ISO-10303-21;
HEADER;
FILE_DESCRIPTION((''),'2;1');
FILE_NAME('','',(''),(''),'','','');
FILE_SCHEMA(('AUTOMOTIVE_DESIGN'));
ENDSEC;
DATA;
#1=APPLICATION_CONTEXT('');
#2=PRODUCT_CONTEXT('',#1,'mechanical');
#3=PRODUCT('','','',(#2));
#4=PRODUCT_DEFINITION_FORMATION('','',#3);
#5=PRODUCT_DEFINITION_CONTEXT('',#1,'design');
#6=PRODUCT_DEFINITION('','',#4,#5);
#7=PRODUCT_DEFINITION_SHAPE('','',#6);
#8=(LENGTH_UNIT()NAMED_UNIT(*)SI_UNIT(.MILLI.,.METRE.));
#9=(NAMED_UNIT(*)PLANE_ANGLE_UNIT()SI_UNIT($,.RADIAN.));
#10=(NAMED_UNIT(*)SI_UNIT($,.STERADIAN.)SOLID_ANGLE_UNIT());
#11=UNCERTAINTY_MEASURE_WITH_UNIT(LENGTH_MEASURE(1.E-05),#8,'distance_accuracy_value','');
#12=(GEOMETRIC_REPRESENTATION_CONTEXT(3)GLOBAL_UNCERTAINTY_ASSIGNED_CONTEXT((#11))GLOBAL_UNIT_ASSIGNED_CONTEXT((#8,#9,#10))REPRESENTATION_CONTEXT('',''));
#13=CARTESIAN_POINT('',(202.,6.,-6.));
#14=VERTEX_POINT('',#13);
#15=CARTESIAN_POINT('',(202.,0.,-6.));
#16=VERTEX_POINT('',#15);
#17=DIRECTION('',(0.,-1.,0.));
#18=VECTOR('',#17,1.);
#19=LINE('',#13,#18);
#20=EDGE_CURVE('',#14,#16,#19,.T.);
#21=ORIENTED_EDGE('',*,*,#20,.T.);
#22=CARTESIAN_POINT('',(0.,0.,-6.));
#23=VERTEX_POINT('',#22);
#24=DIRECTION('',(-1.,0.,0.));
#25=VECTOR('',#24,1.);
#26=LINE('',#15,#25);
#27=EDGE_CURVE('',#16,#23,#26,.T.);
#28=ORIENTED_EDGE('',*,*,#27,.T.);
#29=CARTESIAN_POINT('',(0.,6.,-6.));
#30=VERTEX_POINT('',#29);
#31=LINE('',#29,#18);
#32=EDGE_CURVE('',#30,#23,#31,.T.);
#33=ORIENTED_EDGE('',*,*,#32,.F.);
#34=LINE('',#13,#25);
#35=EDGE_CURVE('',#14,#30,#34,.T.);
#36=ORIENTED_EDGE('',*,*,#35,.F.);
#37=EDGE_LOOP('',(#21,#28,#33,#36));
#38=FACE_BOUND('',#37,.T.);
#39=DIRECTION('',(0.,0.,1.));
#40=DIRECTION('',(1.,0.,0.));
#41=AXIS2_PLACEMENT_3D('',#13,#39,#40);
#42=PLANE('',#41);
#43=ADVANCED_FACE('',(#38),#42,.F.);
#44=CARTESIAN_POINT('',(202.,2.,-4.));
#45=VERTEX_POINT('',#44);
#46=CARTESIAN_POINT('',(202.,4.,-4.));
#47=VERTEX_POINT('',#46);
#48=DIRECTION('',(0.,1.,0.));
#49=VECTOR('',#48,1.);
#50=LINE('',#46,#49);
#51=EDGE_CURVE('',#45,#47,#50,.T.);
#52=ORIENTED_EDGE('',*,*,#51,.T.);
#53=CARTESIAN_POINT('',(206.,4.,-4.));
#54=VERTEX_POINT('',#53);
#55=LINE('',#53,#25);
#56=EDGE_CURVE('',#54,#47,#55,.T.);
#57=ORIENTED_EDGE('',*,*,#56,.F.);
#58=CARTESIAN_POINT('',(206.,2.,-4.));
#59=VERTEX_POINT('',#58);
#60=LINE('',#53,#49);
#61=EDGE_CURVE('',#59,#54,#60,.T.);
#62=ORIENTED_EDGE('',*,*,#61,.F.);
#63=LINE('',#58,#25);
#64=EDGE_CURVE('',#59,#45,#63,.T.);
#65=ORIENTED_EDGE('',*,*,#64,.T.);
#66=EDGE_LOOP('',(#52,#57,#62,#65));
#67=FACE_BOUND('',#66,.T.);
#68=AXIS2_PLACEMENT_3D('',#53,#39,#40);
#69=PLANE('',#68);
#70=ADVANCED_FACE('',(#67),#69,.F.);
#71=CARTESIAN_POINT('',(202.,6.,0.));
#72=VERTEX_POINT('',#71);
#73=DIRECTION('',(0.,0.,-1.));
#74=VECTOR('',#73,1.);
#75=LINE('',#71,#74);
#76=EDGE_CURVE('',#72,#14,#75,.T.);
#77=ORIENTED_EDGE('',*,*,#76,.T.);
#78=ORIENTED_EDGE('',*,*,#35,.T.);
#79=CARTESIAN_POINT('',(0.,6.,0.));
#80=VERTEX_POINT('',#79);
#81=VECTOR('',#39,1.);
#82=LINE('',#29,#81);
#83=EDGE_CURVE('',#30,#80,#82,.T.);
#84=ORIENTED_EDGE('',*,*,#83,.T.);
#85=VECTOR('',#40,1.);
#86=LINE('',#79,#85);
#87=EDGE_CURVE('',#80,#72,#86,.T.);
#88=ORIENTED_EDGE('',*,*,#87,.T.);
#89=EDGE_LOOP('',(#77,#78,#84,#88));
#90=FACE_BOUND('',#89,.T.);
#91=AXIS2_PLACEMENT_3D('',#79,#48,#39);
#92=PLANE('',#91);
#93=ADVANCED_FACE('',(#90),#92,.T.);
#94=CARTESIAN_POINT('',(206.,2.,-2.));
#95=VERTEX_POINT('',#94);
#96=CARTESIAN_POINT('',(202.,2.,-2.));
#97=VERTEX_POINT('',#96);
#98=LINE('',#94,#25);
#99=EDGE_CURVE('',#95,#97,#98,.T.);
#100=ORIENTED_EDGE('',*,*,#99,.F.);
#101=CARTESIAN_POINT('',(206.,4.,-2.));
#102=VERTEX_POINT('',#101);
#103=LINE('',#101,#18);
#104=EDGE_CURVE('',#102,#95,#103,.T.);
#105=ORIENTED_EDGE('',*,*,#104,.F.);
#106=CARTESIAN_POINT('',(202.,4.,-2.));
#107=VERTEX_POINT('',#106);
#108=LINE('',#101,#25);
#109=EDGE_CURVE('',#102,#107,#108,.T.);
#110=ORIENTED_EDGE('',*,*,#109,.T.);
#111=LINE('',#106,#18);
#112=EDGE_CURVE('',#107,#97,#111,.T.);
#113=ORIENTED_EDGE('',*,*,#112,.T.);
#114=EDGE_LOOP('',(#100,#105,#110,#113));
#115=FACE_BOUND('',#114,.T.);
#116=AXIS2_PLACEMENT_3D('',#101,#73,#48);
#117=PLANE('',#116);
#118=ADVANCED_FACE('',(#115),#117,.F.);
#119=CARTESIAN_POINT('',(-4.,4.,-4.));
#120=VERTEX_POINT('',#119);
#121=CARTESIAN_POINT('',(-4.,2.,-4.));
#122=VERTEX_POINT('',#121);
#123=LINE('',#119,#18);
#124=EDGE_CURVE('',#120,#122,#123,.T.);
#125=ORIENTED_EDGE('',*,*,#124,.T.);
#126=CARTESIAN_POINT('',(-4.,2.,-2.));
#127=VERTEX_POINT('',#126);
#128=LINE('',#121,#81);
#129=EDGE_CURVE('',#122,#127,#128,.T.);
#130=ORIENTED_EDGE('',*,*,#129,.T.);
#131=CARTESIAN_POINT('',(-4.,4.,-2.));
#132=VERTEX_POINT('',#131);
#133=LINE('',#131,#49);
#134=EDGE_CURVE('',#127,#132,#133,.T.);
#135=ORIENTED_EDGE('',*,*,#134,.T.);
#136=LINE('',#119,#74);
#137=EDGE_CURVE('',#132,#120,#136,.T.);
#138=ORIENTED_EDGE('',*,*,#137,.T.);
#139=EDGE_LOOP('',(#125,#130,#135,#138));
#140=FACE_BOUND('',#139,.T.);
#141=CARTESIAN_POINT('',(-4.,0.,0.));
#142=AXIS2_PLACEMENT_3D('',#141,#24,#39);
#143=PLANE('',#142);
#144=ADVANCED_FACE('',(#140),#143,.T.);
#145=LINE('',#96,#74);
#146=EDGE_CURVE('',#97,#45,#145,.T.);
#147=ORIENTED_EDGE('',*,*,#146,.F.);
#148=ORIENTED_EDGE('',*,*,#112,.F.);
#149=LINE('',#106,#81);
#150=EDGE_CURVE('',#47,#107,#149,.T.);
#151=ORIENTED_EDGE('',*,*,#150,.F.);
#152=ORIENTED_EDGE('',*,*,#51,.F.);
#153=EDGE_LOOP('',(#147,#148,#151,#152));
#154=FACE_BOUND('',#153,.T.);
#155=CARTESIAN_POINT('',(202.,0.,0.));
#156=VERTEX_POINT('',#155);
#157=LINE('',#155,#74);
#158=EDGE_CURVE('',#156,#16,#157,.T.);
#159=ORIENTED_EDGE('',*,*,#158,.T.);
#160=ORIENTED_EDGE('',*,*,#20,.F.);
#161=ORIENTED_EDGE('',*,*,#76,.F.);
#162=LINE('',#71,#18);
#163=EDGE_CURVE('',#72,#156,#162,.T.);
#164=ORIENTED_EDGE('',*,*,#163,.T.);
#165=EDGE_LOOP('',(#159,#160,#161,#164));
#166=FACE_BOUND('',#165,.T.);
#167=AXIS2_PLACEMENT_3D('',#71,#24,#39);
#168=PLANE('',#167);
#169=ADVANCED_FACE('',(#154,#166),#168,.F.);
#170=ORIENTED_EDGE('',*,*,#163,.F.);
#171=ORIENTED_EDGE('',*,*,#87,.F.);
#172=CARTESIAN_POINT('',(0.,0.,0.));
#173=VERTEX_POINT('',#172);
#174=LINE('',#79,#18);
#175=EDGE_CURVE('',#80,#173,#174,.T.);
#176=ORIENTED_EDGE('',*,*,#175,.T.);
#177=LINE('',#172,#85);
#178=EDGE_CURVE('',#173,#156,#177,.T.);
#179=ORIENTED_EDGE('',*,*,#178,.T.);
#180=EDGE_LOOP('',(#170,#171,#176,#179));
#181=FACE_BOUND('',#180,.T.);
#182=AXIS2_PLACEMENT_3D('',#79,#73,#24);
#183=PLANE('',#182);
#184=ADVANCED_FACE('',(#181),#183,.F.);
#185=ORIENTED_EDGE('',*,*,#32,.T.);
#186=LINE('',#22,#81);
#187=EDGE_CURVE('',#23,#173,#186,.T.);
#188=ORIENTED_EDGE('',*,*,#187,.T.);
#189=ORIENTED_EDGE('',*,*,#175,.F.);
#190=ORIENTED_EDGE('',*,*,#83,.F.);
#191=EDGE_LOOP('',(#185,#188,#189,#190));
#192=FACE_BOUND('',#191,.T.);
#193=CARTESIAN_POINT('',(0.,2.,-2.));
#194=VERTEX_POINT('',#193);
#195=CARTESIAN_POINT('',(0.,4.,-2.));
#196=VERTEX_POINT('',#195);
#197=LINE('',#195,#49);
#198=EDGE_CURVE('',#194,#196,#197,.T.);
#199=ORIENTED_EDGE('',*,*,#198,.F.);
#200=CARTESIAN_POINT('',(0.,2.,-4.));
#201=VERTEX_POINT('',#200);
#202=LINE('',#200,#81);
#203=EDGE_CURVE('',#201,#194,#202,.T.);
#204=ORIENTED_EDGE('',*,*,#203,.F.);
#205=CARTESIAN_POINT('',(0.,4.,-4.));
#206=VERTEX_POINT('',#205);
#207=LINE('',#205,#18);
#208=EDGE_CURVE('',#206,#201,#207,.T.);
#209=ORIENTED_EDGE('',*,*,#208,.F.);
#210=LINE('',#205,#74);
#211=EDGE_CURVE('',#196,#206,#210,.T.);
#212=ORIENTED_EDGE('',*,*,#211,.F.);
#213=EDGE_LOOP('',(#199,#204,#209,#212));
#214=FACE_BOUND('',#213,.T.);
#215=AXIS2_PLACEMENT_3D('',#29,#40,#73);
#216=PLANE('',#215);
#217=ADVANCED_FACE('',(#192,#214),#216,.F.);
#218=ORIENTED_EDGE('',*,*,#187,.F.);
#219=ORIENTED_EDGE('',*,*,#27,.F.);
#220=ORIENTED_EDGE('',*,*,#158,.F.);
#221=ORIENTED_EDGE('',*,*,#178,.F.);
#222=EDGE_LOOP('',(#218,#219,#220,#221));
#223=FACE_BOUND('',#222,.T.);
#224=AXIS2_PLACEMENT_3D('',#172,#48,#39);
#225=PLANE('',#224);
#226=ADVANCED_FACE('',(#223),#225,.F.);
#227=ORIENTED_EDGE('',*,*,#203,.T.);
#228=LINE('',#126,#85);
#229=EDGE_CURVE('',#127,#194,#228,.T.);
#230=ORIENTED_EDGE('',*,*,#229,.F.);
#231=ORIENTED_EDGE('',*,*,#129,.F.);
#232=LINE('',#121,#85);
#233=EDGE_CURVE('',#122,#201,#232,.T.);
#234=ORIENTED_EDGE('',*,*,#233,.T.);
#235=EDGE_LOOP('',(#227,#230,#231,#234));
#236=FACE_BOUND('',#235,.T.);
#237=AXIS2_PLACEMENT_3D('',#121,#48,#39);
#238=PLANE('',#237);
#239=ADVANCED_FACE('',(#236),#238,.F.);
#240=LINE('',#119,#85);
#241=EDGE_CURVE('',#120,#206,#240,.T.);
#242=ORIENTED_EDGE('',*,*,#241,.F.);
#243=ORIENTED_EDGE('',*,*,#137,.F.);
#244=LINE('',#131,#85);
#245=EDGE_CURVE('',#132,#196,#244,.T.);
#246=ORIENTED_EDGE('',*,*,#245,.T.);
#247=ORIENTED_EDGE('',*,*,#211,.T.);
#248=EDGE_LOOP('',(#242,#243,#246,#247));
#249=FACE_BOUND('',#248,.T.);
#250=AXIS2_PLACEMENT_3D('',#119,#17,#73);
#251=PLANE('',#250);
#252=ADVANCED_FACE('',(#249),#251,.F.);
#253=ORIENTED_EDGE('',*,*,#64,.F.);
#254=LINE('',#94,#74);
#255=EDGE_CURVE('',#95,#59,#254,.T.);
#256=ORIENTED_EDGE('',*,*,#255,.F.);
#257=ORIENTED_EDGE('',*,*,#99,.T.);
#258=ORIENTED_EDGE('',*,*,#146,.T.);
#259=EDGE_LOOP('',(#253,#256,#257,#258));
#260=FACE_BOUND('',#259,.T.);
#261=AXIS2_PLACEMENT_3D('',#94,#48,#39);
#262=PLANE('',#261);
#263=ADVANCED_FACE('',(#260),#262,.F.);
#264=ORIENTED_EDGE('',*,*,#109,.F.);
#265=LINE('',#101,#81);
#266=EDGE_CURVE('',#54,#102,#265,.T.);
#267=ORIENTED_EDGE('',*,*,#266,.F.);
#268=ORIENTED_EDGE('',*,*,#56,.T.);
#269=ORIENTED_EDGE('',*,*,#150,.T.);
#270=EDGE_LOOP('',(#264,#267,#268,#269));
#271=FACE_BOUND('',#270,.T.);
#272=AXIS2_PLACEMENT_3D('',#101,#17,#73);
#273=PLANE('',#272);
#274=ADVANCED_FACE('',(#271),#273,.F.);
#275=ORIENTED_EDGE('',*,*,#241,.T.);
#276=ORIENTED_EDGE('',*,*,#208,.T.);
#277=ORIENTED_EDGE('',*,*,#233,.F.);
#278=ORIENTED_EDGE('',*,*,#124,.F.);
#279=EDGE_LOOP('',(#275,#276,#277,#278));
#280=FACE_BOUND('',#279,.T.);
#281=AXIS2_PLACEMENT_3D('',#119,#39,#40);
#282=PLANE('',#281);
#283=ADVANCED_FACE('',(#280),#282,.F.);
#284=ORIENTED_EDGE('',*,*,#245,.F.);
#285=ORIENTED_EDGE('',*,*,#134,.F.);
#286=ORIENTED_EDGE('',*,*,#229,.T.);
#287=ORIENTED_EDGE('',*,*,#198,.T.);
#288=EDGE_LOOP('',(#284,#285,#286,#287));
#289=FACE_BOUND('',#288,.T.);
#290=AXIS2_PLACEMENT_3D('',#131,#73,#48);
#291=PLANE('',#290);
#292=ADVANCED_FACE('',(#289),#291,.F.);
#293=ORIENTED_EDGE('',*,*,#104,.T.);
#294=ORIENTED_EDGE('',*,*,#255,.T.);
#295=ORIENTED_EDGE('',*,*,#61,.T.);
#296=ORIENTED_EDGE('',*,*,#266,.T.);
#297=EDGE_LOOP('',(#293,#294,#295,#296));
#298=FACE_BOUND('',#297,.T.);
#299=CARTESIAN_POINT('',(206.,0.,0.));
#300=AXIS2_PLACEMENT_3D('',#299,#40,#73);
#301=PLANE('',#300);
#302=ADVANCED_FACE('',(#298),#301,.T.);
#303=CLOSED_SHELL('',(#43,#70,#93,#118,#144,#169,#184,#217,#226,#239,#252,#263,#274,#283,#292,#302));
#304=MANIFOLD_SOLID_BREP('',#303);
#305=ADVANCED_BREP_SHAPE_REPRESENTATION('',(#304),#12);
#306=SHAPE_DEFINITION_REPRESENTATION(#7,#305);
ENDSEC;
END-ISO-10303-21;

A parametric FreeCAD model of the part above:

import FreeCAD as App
import Part
import Sketcher

V = App.Vector


def add_polygon(sketch, points):
    """Adds a closed chain of lines whose ends are joined by coincident constraints."""
    first, n = sketch.GeometryCount, len(points)
    for a, b in zip(points, points[1:] + points[:1]):
        sketch.addGeometry(Part.LineSegment(App.Vector(*a, 0), App.Vector(*b, 0)), False)
    for i in range(n):
        sketch.addConstraint(Sketcher.Constraint("Coincident", first + i, 2, first + (i + 1) % n, 1))

doc = App.newDocument("Part")
body = doc.addObject("PartDesign::Body", "Body")

sketch1 = body.newObject("Sketcher::SketchObject", "Sketch")
sketch1.AttachmentSupport = (doc.getObject("XZ_Plane"), [""])
sketch1.MapMode = "FlatFace"
add_polygon(sketch1, [(0, -6), (0, 0), (202, 0), (202, -6)])
sketch1.addConstraint(Sketcher.Constraint("Vertical", 0))
sketch1.addConstraint(Sketcher.Constraint("Horizontal", 1))
sketch1.addConstraint(Sketcher.Constraint("Vertical", 2))
sketch1.addConstraint(Sketcher.Constraint("Horizontal", 3))
sketch1.addConstraint(Sketcher.Constraint("Coincident", 0, 2, -1, 1))
sketch1.addConstraint(Sketcher.Constraint("DistanceX", 1, 1, 1, 2, 202.0))
sketch1.addConstraint(Sketcher.Constraint("DistanceY", 0, 1, 0, 2, 6.0))
pad1 = body.newObject("PartDesign::Pad", "Pad")
pad1.Profile = sketch1
pad1.Length = 6
pad1.Reversed = True

sketch2 = body.newObject("Sketcher::SketchObject", "Sketch001")
sketch2.AttachmentSupport = (doc.getObject("YZ_Plane"), [""])
sketch2.MapMode = "FlatFace"
add_polygon(sketch2, [(4, -4), (2, -4), (2, -2), (4, -2)])
sketch2.addConstraint(Sketcher.Constraint("Horizontal", 0))
sketch2.addConstraint(Sketcher.Constraint("Vertical", 1))
sketch2.addConstraint(Sketcher.Constraint("Horizontal", 2))
sketch2.addConstraint(Sketcher.Constraint("Vertical", 3))
sketch2.addConstraint(Sketcher.Constraint("Equal", 2, 1))
sketch2.addConstraint(Sketcher.Constraint("DistanceX", 0, 2, 0, 1, 2.0))
sketch2.addConstraint(Sketcher.Constraint("DistanceX", -1, 1, 0, 2, 2.0))
sketch2.addConstraint(Sketcher.Constraint("DistanceY", 0, 2, -1, 1, 4.0))
pad2 = body.newObject("PartDesign::Pad", "Pad001")
pad2.Profile = sketch2
pad2.Length = 4
pad2.Reversed = True

sketch3 = body.newObject("Sketcher::SketchObject", "Sketch002")
sketch3.AttachmentSupport = (doc.getObject("YZ_Plane"), [""])
sketch3.MapMode = "FlatFace"
sketch3.AttachmentOffset = App.Placement(V(0, 0, 202), App.Rotation())
add_polygon(sketch3, [(4, -2), (2, -2), (2, -4), (4, -4)])
sketch3.addConstraint(Sketcher.Constraint("Horizontal", 0))
sketch3.addConstraint(Sketcher.Constraint("Vertical", 1))
sketch3.addConstraint(Sketcher.Constraint("Horizontal", 2))
sketch3.addConstraint(Sketcher.Constraint("Vertical", 3))
sketch3.addConstraint(Sketcher.Constraint("Equal", 2, 1))
sketch3.addConstraint(Sketcher.Constraint("DistanceX", 0, 2, 0, 1, 2.0))
sketch3.addConstraint(Sketcher.Constraint("DistanceX", -1, 1, 0, 2, 2.0))
sketch3.addConstraint(Sketcher.Constraint("DistanceY", 0, 2, -1, 1, 2.0))
pad3 = body.newObject("PartDesign::Pad", "Pad002")
pad3.Profile = sketch3
pad3.Length = 4

doc.recompute()
